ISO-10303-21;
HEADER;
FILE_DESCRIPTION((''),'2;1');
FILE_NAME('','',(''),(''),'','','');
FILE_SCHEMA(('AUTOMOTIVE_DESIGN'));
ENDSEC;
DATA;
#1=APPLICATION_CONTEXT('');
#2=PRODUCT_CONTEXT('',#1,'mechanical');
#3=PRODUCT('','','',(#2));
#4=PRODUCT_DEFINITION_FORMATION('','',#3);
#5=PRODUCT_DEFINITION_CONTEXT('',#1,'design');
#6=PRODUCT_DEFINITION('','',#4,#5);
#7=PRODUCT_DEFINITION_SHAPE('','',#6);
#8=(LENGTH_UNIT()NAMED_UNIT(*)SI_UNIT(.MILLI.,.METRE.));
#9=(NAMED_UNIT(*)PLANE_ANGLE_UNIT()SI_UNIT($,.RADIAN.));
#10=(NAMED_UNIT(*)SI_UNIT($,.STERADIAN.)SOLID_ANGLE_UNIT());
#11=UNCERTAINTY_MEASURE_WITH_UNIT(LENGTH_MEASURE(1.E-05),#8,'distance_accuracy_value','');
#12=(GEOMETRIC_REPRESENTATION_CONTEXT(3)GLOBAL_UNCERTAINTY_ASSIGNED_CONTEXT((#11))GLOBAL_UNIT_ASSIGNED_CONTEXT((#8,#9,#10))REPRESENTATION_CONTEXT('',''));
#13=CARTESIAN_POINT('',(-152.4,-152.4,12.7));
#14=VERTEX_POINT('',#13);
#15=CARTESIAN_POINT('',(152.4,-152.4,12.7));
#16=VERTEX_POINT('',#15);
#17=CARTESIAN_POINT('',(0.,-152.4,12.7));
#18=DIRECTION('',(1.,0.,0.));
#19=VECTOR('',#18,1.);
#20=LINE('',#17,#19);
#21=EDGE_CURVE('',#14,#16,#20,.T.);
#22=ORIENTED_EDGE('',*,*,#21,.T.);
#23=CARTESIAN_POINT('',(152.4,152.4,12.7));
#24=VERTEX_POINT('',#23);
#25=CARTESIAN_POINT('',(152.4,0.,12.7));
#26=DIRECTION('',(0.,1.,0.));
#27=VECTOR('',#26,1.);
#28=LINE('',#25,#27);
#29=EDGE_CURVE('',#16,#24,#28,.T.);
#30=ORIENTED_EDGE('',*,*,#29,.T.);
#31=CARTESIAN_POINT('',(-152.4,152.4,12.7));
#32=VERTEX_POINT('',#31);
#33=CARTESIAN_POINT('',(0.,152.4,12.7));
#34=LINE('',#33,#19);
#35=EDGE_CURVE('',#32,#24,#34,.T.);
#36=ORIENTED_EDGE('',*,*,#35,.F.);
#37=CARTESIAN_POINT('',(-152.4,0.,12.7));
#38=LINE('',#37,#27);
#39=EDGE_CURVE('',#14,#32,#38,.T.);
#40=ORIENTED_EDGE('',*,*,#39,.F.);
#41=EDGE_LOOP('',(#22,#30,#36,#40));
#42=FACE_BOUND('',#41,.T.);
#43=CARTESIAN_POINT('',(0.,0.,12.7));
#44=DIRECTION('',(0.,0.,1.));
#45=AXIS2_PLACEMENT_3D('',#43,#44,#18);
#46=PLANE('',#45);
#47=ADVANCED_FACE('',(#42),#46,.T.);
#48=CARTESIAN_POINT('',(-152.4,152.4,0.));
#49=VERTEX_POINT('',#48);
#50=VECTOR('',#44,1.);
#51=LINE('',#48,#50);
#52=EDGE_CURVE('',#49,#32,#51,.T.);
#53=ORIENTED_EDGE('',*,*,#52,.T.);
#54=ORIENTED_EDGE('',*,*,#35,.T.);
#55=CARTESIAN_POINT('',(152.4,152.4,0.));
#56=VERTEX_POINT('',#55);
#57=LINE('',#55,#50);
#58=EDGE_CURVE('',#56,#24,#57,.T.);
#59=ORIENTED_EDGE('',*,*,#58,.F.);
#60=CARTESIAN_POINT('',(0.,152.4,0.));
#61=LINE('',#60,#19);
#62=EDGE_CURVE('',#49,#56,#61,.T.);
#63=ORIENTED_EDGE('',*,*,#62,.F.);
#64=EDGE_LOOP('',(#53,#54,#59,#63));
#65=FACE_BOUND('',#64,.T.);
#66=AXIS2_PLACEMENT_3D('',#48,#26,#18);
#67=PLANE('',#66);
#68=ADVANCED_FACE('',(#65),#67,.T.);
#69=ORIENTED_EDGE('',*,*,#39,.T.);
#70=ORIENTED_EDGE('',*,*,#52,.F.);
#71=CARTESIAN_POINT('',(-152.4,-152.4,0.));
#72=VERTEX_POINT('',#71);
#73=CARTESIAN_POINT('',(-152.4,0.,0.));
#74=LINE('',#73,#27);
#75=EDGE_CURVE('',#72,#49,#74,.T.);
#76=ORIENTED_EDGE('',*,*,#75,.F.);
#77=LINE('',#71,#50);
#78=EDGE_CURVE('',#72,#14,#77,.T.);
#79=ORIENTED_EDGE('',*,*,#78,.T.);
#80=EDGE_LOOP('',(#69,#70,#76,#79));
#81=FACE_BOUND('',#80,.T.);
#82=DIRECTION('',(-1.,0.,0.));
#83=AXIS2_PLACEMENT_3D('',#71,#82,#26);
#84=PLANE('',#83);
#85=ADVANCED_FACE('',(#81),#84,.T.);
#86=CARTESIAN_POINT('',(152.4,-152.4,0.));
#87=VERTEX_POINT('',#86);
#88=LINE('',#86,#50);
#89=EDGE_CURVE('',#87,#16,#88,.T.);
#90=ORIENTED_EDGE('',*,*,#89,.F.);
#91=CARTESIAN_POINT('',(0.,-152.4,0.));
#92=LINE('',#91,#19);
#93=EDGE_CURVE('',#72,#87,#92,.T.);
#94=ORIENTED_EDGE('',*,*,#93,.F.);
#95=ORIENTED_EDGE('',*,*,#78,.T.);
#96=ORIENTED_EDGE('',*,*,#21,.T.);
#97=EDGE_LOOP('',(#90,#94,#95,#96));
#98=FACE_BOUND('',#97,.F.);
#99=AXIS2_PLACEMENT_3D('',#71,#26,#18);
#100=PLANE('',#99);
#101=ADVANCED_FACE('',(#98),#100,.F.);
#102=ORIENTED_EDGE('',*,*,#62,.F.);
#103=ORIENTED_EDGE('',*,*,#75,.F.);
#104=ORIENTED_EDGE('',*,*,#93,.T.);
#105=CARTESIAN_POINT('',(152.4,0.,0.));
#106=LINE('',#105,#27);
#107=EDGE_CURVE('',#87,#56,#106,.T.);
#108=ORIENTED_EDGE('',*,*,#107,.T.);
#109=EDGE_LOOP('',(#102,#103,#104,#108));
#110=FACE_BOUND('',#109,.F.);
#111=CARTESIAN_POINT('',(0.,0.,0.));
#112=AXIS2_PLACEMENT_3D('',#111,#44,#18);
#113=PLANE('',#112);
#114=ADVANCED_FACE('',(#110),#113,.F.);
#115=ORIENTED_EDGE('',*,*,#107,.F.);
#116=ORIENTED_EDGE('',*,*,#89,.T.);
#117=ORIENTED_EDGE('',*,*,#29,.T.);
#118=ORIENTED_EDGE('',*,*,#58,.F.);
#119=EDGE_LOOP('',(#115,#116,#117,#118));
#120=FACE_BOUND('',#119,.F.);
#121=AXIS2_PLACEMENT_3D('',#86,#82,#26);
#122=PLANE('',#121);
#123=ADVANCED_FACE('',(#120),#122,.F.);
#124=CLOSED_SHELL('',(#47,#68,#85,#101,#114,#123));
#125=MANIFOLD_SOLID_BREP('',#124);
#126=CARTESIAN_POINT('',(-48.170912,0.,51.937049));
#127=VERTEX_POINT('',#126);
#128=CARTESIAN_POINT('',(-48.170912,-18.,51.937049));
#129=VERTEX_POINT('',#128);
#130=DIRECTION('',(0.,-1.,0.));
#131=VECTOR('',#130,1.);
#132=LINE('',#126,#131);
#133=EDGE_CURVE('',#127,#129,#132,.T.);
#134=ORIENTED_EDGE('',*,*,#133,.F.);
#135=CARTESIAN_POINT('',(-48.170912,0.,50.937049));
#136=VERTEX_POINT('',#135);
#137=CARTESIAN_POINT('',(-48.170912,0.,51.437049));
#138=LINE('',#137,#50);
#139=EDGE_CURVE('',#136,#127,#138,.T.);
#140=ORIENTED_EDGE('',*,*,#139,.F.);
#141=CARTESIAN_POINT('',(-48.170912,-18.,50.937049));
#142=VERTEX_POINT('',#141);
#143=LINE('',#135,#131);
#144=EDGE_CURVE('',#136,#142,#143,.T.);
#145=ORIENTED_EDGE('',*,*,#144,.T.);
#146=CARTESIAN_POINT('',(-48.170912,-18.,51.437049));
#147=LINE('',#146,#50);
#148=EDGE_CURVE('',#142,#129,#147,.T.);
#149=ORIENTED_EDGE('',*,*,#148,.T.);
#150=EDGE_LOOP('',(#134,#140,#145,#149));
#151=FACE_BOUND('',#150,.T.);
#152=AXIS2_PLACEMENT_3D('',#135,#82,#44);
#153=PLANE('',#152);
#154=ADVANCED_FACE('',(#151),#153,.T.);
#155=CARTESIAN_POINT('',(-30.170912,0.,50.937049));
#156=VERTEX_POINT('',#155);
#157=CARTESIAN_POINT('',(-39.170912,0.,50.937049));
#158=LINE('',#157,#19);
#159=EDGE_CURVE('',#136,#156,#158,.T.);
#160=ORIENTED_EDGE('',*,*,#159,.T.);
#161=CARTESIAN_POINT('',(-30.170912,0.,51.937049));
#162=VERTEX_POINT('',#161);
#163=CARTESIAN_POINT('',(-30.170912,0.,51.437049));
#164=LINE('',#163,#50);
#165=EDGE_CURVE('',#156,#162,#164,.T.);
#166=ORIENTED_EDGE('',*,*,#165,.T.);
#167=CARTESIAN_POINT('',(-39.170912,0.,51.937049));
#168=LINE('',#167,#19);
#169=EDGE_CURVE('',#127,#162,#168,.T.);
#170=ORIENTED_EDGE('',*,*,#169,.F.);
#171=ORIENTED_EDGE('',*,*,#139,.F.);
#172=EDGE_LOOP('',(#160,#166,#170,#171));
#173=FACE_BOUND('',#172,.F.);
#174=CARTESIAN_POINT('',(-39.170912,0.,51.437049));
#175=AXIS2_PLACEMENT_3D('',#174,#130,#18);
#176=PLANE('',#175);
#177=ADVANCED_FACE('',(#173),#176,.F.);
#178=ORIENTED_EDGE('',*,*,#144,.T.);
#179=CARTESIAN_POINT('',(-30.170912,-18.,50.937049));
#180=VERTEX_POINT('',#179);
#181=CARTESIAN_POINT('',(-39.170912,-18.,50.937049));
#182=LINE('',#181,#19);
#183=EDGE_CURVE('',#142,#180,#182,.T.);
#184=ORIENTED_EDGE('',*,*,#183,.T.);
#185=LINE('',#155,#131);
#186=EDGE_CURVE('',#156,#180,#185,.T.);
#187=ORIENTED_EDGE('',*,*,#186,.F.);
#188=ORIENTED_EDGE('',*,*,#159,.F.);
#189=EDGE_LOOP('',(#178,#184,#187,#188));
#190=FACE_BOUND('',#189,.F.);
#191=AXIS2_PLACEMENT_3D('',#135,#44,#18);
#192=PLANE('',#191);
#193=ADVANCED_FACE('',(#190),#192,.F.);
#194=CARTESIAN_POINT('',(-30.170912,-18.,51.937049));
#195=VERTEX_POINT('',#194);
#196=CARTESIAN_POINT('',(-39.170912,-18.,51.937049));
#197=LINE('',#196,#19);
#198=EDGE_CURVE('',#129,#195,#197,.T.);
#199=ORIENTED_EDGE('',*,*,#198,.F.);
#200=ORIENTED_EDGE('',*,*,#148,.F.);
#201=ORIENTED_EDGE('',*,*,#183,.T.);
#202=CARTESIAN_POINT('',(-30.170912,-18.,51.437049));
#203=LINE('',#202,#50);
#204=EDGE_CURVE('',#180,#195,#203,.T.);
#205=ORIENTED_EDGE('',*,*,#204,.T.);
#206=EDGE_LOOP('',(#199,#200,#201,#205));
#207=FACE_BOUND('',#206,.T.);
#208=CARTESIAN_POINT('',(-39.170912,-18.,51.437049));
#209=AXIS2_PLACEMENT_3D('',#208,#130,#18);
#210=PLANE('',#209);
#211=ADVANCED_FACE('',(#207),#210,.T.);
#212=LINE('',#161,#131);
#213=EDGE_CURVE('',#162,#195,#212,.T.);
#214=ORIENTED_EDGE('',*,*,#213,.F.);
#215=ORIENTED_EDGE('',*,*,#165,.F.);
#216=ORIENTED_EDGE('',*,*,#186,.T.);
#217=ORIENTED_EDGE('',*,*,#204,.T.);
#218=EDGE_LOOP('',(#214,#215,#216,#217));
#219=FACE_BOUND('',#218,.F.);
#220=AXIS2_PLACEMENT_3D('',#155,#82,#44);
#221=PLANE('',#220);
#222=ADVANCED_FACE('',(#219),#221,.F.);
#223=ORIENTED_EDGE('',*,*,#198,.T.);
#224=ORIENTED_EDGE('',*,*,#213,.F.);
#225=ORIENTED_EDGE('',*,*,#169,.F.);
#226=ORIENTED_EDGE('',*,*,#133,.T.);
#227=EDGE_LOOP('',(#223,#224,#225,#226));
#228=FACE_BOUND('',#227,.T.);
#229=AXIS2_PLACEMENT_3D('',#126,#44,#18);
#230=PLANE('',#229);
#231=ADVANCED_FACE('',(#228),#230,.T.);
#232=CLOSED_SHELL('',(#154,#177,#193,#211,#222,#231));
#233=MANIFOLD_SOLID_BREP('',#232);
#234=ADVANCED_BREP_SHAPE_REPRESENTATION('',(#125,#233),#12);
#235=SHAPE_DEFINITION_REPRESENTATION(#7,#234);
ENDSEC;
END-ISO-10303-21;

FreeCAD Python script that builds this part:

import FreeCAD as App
import Part
import Sketcher
from FreeCAD import Vector
Q = App.Units.Quantity

doc = App.newDocument("Part")
body = doc.addObject("PartDesign::Body", "Body")

# Sketch on XY plane
sketch1 = body.newObject("Sketcher::SketchObject", "Sketch")
sketch1.AttachmentSupport = (doc.getObject("XY_Plane"), [""])
sketch1.MapMode = "FlatFace"
sketch1.addGeometry(Part.LineSegment(Vector(-152, 152, 0), Vector(-152, -152, 0)), False)
sketch1.addGeometry(Part.LineSegment(Vector(-152, -152, 0), Vector(152, -152, 0)), False)
sketch1.addGeometry(Part.LineSegment(Vector(152, -152, 0), Vector(152, 152, 0)), False)
sketch1.addGeometry(Part.LineSegment(Vector(152, 152, 0), Vector(-152, 152, 0)), False)
sketch1.addConstraint(Sketcher.Constraint("Coincident", 0, 2, 1, 1))
sketch1.addConstraint(Sketcher.Constraint("Coincident", 1, 2, 2, 1))
sketch1.addConstraint(Sketcher.Constraint("Coincident", 2, 2, 3, 1))
sketch1.addConstraint(Sketcher.Constraint("Coincident", 3, 2, 0, 1))
sketch1.addConstraint(Sketcher.Constraint("Vertical", 0))
sketch1.addConstraint(Sketcher.Constraint("Horizontal", 1))
sketch1.addConstraint(Sketcher.Constraint("Vertical", 2))
sketch1.addConstraint(Sketcher.Constraint("Horizontal", 3))
sketch1.addConstraint(Sketcher.Constraint("Symmetric", 0, 2, 2, 2, -1, 1))
sketch1.addConstraint(Sketcher.Constraint("Equal", 3, 0))
sketch1.addConstraint(Sketcher.Constraint("DistanceX", 1, 1, 1, 2, Q("304.8 mm")))
pad1 = body.newObject("PartDesign::Pad", "Pad")
pad1.Profile = sketch1
pad1.Length = 12.7
body2 = doc.addObject("PartDesign::Body", "Body001")

# Sketch on XZ plane
sketch2 = body2.newObject("Sketcher::SketchObject", "Sketch001")
sketch2.AttachmentSupport = (doc.getObject("XZ_Plane001"), [""])
sketch2.MapMode = "FlatFace"
sketch2.addGeometry(Part.LineSegment(Vector(-48.2, 51.9, 0), Vector(-48.2, 50.9, 0)), False)
sketch2.addGeometry(Part.LineSegment(Vector(-48.2, 50.9, 0), Vector(-30.2, 50.9, 0)), False)
sketch2.addGeometry(Part.LineSegment(Vector(-30.2, 50.9, 0), Vector(-30.2, 51.9, 0)), False)
sketch2.addGeometry(Part.LineSegment(Vector(-30.2, 51.9, 0), Vector(-48.2, 51.9, 0)), False)
sketch2.addConstraint(Sketcher.Constraint("Coincident", 0, 2, 1, 1))
sketch2.addConstraint(Sketcher.Constraint("Coincident", 1, 2, 2, 1))
sketch2.addConstraint(Sketcher.Constraint("Coincident", 2, 2, 3, 1))
sketch2.addConstraint(Sketcher.Constraint("Coincident", 3, 2, 0, 1))
sketch2.addConstraint(Sketcher.Constraint("Vertical", 0))
sketch2.addConstraint(Sketcher.Constraint("Horizontal", 1))
sketch2.addConstraint(Sketcher.Constraint("Vertical", 2))
sketch2.addConstraint(Sketcher.Constraint("Horizontal", 3))
sketch2.addConstraint(Sketcher.Constraint("DistanceX", 1, 1, 1, 2, Q("18 mm")))
sketch2.addConstraint(Sketcher.Constraint("DistanceY", 0, 2, 0, 1, Q("1 mm")))
sketch2.addConstraint(Sketcher.Constraint("DistanceY", -1, 1, 0, 2, Q("50.937049 mm")))
sketch2.addConstraint(Sketcher.Constraint("DistanceX", 0, 2, -1, 1, Q("48.170912 mm")))
pad2 = body2.newObject("PartDesign::Pad", "Pad001")
pad2.Profile = sketch2
pad2.Length = 18

doc.recompute()
